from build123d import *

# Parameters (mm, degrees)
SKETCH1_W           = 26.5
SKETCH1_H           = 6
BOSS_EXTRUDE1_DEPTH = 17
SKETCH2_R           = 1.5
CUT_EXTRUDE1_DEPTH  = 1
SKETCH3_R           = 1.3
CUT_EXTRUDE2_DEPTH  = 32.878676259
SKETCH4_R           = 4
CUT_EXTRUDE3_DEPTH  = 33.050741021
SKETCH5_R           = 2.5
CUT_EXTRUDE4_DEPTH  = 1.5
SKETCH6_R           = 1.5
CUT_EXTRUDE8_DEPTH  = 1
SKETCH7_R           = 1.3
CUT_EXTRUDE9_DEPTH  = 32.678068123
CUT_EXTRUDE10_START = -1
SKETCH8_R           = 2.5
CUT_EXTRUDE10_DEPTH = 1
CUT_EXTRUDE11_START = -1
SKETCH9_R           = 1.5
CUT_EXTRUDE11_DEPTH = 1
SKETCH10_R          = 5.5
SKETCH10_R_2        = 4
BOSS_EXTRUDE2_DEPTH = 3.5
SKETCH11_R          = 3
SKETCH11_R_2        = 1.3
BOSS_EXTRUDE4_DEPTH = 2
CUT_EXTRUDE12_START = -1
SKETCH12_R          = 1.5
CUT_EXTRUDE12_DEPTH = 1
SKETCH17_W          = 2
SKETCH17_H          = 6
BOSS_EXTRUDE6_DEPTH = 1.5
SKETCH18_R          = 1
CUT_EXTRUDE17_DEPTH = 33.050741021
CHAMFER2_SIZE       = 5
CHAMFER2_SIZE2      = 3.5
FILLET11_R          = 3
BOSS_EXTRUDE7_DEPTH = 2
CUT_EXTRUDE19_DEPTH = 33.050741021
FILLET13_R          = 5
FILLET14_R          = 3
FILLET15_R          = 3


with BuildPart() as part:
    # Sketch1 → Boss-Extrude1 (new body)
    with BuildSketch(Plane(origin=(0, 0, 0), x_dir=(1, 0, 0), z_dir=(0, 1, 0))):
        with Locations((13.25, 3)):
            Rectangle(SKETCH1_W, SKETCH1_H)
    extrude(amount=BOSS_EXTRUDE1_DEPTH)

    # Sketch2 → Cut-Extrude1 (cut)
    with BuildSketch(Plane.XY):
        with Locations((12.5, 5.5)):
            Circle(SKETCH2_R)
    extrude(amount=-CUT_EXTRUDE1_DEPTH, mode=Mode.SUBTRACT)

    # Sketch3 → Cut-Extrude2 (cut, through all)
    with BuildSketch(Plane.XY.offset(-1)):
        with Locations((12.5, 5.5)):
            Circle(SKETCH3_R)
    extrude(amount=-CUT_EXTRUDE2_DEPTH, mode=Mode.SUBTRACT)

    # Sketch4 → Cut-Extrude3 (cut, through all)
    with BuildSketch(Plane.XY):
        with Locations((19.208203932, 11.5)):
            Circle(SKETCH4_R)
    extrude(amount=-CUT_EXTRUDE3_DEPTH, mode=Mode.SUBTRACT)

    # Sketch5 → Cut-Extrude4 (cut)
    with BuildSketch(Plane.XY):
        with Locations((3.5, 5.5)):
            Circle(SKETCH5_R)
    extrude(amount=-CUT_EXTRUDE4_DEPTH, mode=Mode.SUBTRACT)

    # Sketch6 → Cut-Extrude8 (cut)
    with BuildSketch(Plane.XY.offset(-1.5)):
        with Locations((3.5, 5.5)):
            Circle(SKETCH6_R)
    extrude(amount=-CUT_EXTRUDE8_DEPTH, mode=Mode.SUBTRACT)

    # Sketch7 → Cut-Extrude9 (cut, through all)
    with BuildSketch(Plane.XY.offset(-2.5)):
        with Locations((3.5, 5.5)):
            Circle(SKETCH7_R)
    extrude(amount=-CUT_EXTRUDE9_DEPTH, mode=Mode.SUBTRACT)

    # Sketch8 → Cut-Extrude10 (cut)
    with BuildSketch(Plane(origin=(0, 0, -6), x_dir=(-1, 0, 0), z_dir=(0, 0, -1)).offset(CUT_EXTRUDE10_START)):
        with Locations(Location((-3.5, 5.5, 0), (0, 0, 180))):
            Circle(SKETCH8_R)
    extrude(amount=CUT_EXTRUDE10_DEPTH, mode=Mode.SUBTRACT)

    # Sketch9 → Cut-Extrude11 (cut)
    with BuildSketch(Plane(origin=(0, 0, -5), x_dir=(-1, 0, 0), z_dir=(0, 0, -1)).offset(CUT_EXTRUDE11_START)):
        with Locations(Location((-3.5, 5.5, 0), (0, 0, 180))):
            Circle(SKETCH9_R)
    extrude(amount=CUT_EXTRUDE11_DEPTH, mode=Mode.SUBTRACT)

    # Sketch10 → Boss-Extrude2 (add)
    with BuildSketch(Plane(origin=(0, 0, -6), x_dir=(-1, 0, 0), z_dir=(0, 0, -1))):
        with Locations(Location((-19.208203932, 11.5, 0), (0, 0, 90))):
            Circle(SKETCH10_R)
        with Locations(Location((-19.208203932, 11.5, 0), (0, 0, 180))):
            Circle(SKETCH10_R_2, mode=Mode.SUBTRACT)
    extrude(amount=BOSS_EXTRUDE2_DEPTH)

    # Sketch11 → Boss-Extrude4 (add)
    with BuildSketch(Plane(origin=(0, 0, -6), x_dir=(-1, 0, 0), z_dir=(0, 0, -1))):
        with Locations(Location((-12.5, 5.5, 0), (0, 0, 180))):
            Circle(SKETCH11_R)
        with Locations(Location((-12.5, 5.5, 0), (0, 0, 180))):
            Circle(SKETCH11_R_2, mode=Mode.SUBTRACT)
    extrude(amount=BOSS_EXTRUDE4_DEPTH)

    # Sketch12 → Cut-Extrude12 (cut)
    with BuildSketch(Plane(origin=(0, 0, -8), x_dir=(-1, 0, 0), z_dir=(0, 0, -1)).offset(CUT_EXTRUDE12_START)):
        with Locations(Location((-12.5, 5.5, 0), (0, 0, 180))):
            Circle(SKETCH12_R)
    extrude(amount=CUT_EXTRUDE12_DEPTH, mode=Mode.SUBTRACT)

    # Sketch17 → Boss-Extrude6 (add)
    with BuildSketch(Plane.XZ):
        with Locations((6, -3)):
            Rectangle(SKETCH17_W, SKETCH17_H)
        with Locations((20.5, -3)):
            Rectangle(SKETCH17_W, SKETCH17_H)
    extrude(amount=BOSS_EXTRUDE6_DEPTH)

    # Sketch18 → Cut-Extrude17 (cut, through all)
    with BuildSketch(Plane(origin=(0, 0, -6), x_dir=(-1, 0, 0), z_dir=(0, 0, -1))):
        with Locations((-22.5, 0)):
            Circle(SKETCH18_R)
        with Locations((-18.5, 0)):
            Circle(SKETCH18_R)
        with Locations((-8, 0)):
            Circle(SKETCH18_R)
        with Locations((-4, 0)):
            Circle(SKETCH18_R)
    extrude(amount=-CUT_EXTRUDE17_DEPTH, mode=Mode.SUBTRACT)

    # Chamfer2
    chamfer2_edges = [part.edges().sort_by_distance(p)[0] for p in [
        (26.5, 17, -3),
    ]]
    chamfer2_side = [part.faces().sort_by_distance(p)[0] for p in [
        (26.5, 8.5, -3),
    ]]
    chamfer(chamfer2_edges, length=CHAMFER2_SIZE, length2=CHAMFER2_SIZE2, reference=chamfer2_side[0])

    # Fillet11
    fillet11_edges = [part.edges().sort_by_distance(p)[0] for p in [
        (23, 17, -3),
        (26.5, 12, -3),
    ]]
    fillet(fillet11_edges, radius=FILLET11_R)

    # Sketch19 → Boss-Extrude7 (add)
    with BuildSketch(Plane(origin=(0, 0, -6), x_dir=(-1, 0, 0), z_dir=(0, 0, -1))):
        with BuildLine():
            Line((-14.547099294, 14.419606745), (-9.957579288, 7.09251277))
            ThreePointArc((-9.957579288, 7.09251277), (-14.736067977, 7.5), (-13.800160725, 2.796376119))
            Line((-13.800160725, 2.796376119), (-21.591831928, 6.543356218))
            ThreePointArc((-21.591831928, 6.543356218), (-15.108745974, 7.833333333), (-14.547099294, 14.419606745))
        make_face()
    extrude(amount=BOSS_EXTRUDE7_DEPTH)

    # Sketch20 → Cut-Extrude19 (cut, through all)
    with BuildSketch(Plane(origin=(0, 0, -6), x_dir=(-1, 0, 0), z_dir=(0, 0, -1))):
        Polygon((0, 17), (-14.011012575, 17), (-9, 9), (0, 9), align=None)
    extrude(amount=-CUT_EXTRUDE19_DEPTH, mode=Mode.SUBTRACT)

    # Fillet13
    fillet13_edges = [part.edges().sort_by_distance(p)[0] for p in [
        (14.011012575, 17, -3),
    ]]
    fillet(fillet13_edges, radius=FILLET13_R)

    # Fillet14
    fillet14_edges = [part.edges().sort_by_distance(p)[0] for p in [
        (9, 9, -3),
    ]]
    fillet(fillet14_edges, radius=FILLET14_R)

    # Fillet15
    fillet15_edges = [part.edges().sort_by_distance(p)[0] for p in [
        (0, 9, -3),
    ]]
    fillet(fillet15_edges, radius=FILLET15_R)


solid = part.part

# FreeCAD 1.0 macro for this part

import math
import FreeCAD as App
import Part
import Sketcher
from FreeCAD import Vector
Q = App.Units.Quantity


def edges_at(feature, points):
    """Names of the edges that pass closest to the given points."""
    edges = feature.Shape.Edges
    near = lambda p: min(range(len(edges)), key=lambda i: edges[i].distToShape(Part.Vertex(*p))[0])
    return sorted({f"Edge{near(p) + 1}" for p in points})


def add_polygon(sketch, points):
    """Adds a closed chain of lines whose ends are joined by coincident constraints."""
    first, n = sketch.GeometryCount, len(points)
    for a, b in zip(points, points[1:] + points[:1]):
        sketch.addGeometry(Part.LineSegment(App.Vector(*a, 0), App.Vector(*b, 0)), False)
    for i in range(n):
        sketch.addConstraint(Sketcher.Constraint("Coincident", first + i, 2, first + (i + 1) % n, 1))

doc = App.newDocument("Part")
body = doc.addObject("PartDesign::Body", "Body")

sketch1 = body.newObject("Sketcher::SketchObject", "Sketch")
sketch1.AttachmentSupport = (doc.getObject("XZ_Plane"), [""])
sketch1.MapMode = "FlatFace"
add_polygon(sketch1, [(0, -6), (0, 0), (26, 0), (26, -6)])
sketch1.addConstraint([
    Sketcher.Constraint("Vertical", 0),
    Sketcher.Constraint("Horizontal", 1),
    Sketcher.Constraint("Vertical", 2),
    Sketcher.Constraint("Horizontal", 3),
    Sketcher.Constraint("Coincident", 0, 2, -1, 1),
    Sketcher.Constraint("DistanceY", 0, 1, 0, 2, Q("6 mm")),
    Sketcher.Constraint("DistanceX", 1, 1, 1, 2, Q("26.5 mm")),
])
pad1 = body.newObject("PartDesign::Pad", "Pad")
pad1.Profile = sketch1
pad1.Length = 17
pad1.Reversed = True

sketch2 = body.newObject("Sketcher::SketchObject", "Sketch001")
sketch2.AttachmentSupport = (doc.getObject("XY_Plane"), [""])
sketch2.MapMode = "FlatFace"
sketch2.addGeometry(Part.Circle(Vector(12.5, 5.5, 0), Vector(0, 0, 1), 1.5), False)
sketch2.addConstraint([
    Sketcher.Constraint("Diameter", 0, Q("3 mm")),
    Sketcher.Constraint("DistanceX", -1, 1, 0, 3, Q("12.5 mm")),
    Sketcher.Constraint("DistanceY", -1, 1, 0, 3, Q("5.5 mm")),
])
pocket1 = body.newObject("PartDesign::Pocket", "Pocket")
pocket1.Profile = sketch2
pocket1.Length = 1

sketch3 = body.newObject("Sketcher::SketchObject", "Sketch002")
sketch3.AttachmentSupport = (doc.getObject("XY_Plane"), [""])
sketch3.MapMode = "FlatFace"
sketch3.AttachmentOffset = App.Placement(Vector(0, 0, -1), App.Rotation())
sketch3.addGeometry(Part.Circle(Vector(12.5, 5.5, 0), Vector(0, 0, 1), 1.3), False)
sketch3.addConstraint([
    Sketcher.Constraint("Diameter", 0, Q("2.6 mm")),
    Sketcher.Constraint("DistanceX", -1, 1, 0, 3, Q("12.5 mm")),
    Sketcher.Constraint("DistanceY", -1, 1, 0, 3, Q("5.5 mm")),
])
pocket2 = body.newObject("PartDesign::Pocket", "Pocket001")
pocket2.Profile = sketch3
pocket2.Type = "ThroughAll"

sketch4 = body.newObject("Sketcher::SketchObject", "Sketch003")
sketch4.AttachmentSupport = (doc.getObject("XY_Plane"), [""])
sketch4.MapMode = "FlatFace"
sketch4.addGeometry(Part.Circle(Vector(19.2, 11.5, 0), Vector(0, 0, 1), 4), False)
sketch4.addConstraint([
    Sketcher.Constraint("Diameter", 0, Q("8 mm")),
    Sketcher.Constraint("DistanceY", -1, 1, 0, 3, Q("11.5 mm")),
    Sketcher.Constraint("DistanceX", -1, 1, 0, 3, Q("19.208204 mm")),
])
pocket3 = body.newObject("PartDesign::Pocket", "Pocket002")
pocket3.Profile = sketch4
pocket3.Type = "ThroughAll"

sketch5 = body.newObject("Sketcher::SketchObject", "Sketch004")
sketch5.AttachmentSupport = (doc.getObject("XY_Plane"), [""])
sketch5.MapMode = "FlatFace"
sketch5.addGeometry(Part.Circle(Vector(3.5, 5.5, 0), Vector(0, 0, 1), 2.5), False)
sketch5.addConstraint([
    Sketcher.Constraint("Diameter", 0, Q("5 mm")),
    Sketcher.Constraint("DistanceX", -1, 1, 0, 3, Q("3.5 mm")),
    Sketcher.Constraint("DistanceY", -1, 1, 0, 3, Q("5.5 mm")),
])
pocket4 = body.newObject("PartDesign::Pocket", "Pocket003")
pocket4.Profile = sketch5
pocket4.Length = 1.5

sketch6 = body.newObject("Sketcher::SketchObject", "Sketch005")
sketch6.AttachmentSupport = (doc.getObject("XY_Plane"), [""])
sketch6.MapMode = "FlatFace"
sketch6.AttachmentOffset = App.Placement(Vector(0, 0, -1.5), App.Rotation())
sketch6.addGeometry(Part.Circle(Vector(3.5, 5.5, 0), Vector(0, 0, 1), 1.5), False)
sketch6.addConstraint([
    Sketcher.Constraint("Diameter", 0, Q("3 mm")),
    Sketcher.Constraint("DistanceX", -1, 1, 0, 3, Q("3.5 mm")),
    Sketcher.Constraint("DistanceY", -1, 1, 0, 3, Q("5.5 mm")),
])
pocket5 = body.newObject("PartDesign::Pocket", "Pocket004")
pocket5.Profile = sketch6
pocket5.Length = 1

sketch7 = body.newObject("Sketcher::SketchObject", "Sketch006")
sketch7.AttachmentSupport = (doc.getObject("XY_Plane"), [""])
sketch7.MapMode = "FlatFace"
sketch7.AttachmentOffset = App.Placement(Vector(0, 0, -2.5), App.Rotation())
sketch7.addGeometry(Part.Circle(Vector(3.5, 5.5, 0), Vector(0, 0, 1), 1.3), False)
sketch7.addConstraint([
    Sketcher.Constraint("Diameter", 0, Q("2.6 mm")),
    Sketcher.Constraint("DistanceX", -1, 1, 0, 3, Q("3.5 mm")),
    Sketcher.Constraint("DistanceY", -1, 1, 0, 3, Q("5.5 mm")),
])
pocket6 = body.newObject("PartDesign::Pocket", "Pocket005")
pocket6.Profile = sketch7
pocket6.Type = "ThroughAll"

sketch8 = body.newObject("Sketcher::SketchObject", "Sketch007")
sketch8.AttachmentSupport = (doc.getObject("XY_Plane"), [""])
sketch8.MapMode = "FlatFace"
sketch8.AttachmentOffset = App.Placement(Vector(0, 0, -5), App.Rotation())
sketch8.addGeometry(Part.Circle(Vector(3.5, 5.5, 0), Vector(0, 0, 1), 2.5), False)
sketch8.addConstraint([
    Sketcher.Constraint("Diameter", 0, Q("5 mm")),
    Sketcher.Constraint("DistanceX", -1, 1, 0, 3, Q("3.5 mm")),
    Sketcher.Constraint("DistanceY", -1, 1, 0, 3, Q("5.5 mm")),
])
pocket7 = body.newObject("PartDesign::Pocket", "Pocket006")
pocket7.Profile = sketch8
pocket7.Length = 1

sketch9 = body.newObject("Sketcher::SketchObject", "Sketch008")
sketch9.AttachmentSupport = (doc.getObject("XY_Plane"), [""])
sketch9.MapMode = "FlatFace"
sketch9.AttachmentOffset = App.Placement(Vector(0, 0, -4), App.Rotation())
sketch9.addGeometry(Part.Circle(Vector(3.5, 5.5, 0), Vector(0, 0, 1), 1.5), False)
sketch9.addConstraint([
    Sketcher.Constraint("Diameter", 0, Q("3 mm")),
    Sketcher.Constraint("DistanceX", -1, 1, 0, 3, Q("3.5 mm")),
    Sketcher.Constraint("DistanceY", -1, 1, 0, 3, Q("5.5 mm")),
])
pocket8 = body.newObject("PartDesign::Pocket", "Pocket007")
pocket8.Profile = sketch9
pocket8.Length = 1

sketch10 = body.newObject("Sketcher::SketchObject", "Sketch009")
sketch10.AttachmentSupport = (doc.getObject("XY_Plane"), [""])
sketch10.MapMode = "FlatFace"
sketch10.AttachmentOffset = App.Placement(Vector(0, 0, -6), App.Rotation())
sketch10.addGeometry([
    Part.Circle(Vector(19.2, 11.5, 0), Vector(0, 0, 1), 5.5),
    Part.Circle(Vector(19.2, 11.5, 0), Vector(0, 0, 1), 4),
], False)
sketch10.addConstraint([
    Sketcher.Constraint("Coincident", 1, 3, 0, 3),
    Sketcher.Constraint("Diameter", 0, Q("11 mm")),
    Sketcher.Constraint("Diameter", 1, Q("8 mm")),
    Sketcher.Constraint("DistanceY", -1, 1, 0, 3, Q("11.5 mm")),
    Sketcher.Constraint("DistanceX", -1, 1, 0, 3, Q("19.208204 mm")),
])
pad2 = body.newObject("PartDesign::Pad", "Pad001")
pad2.Profile = sketch10
pad2.Length = 3.5
pad2.Reversed = True

sketch11 = body.newObject("Sketcher::SketchObject", "Sketch010")
sketch11.AttachmentSupport = (doc.getObject("XY_Plane"), [""])
sketch11.MapMode = "FlatFace"
sketch11.AttachmentOffset = App.Placement(Vector(0, 0, -6), App.Rotation())
sketch11.addGeometry([
    Part.Circle(Vector(12.5, 5.5, 0), Vector(0, 0, 1), 3),
    Part.Circle(Vector(12.5, 5.5, 0), Vector(0, 0, 1), 1.3),
], False)
sketch11.addConstraint([
    Sketcher.Constraint("Coincident", 1, 3, 0, 3),
    Sketcher.Constraint("Diameter", 0, Q("6 mm")),
    Sketcher.Constraint("Diameter", 1, Q("2.6 mm")),
    Sketcher.Constraint("DistanceX", -1, 1, 0, 3, Q("12.5 mm")),
    Sketcher.Constraint("DistanceY", -1, 1, 0, 3, Q("5.5 mm")),
])
pad3 = body.newObject("PartDesign::Pad", "Pad002")
pad3.Profile = sketch11
pad3.Length = 2
pad3.Reversed = True

sketch12 = body.newObject("Sketcher::SketchObject", "Sketch011")
sketch12.AttachmentSupport = (doc.getObject("XY_Plane"), [""])
sketch12.MapMode = "FlatFace"
sketch12.AttachmentOffset = App.Placement(Vector(0, 0, -7), App.Rotation())
sketch12.addGeometry(Part.Circle(Vector(12.5, 5.5, 0), Vector(0, 0, 1), 1.5), False)
sketch12.addConstraint([
    Sketcher.Constraint("Diameter", 0, Q("3 mm")),
    Sketcher.Constraint("DistanceX", -1, 1, 0, 3, Q("12.5 mm")),
    Sketcher.Constraint("DistanceY", -1, 1, 0, 3, Q("5.5 mm")),
])
pocket9 = body.newObject("PartDesign::Pocket", "Pocket008")
pocket9.Profile = sketch12
pocket9.Length = 1

sketch13 = body.newObject("Sketcher::SketchObject", "Sketch012")
sketch13.AttachmentSupport = (doc.getObject("XZ_Plane"), [""])
sketch13.MapMode = "FlatFace"
add_polygon(sketch13, [(5, 0), (5, -6), (7, -6), (7, 0)])
add_polygon(sketch13, [(19.5, 0), (19.5, -6), (21.5, -6), (21.5, 0)])
sketch13.addConstraint([
    Sketcher.Constraint("Vertical", 0),
    Sketcher.Constraint("Horizontal", 1),
    Sketcher.Constraint("Vertical", 2),
    Sketcher.Constraint("Horizontal", 3),
    Sketcher.Constraint("Vertical", 4),
    Sketcher.Constraint("Horizontal", 5),
    Sketcher.Constraint("Vertical", 6),
    Sketcher.Constraint("Horizontal", 7),
    Sketcher.Constraint("PointOnObject", 2, 2, -1),
    Sketcher.Constraint("PointOnObject", 6, 2, -1),
    Sketcher.Constraint("Horizontal", 1, 2, 4, 2),
    Sketcher.Constraint("Equal", 3, 5),
    Sketcher.Constraint("DistanceX", 1, 1, 1, 2, Q("2 mm")),
    Sketcher.Constraint("DistanceY", 0, 2, 0, 1, Q("6 mm")),
    Sketcher.Constraint("DistanceX", -1, 1, 0, 2, Q("5 mm")),
    Sketcher.Constraint("DistanceX", -1, 1, 4, 2, Q("19.5 mm")),
])
pad4 = body.newObject("PartDesign::Pad", "Pad003")
pad4.Profile = sketch13
pad4.Length = 1.5

sketch14 = body.newObject("Sketcher::SketchObject", "Sketch013")
sketch14.AttachmentSupport = (doc.getObject("XY_Plane"), [""])
sketch14.MapMode = "FlatFace"
sketch14.AttachmentOffset = App.Placement(Vector(0, 0, -6), App.Rotation())
sketch14.addGeometry([
    Part.Circle(Vector(22.5, 0, 0), Vector(0, 0, 1), 1),
    Part.Circle(Vector(18.5, 0, 0), Vector(0, 0, 1), 1),
    Part.Circle(Vector(8, 0, 0), Vector(0, 0, 1), 1),
    Part.Circle(Vector(4, 0, 0), Vector(0, 0, 1), 1),
], False)
sketch14.addConstraint([
    Sketcher.Constraint("Equal", 0, 1),
    Sketcher.Constraint("Equal", 1, 2),
    Sketcher.Constraint("Equal", 2, 3),
    Sketcher.Constraint("PointOnObject", 0, 3, -1),
    Sketcher.Constraint("PointOnObject", 1, 3, -1),
    Sketcher.Constraint("PointOnObject", 2, 3, -1),
    Sketcher.Constraint("PointOnObject", 3, 3, -1),
    Sketcher.Constraint("Diameter", 0, Q("2 mm")),
    Sketcher.Constraint("DistanceX", -1, 1, 2, 3, Q("8 mm")),
    Sketcher.Constraint("DistanceX", -1, 1, 3, 3, Q("4 mm")),
    Sketcher.Constraint("DistanceX", 1, 3, 0, 3, Q("4 mm")),
    Sketcher.Constraint("DistanceX", -1, 1, 0, 3, Q("22.5 mm")),
])
pocket10 = body.newObject("PartDesign::Pocket", "Pocket009")
pocket10.Profile = sketch14
pocket10.Type = "ThroughAll"
pocket10.Reversed = True
doc.recompute()

chamfer = body.newObject("PartDesign::Chamfer", "Chamfer")
chamfer.Base = (pocket10, edges_at(pocket10, [(26.5, 17, -3)]))
chamfer.ChamferType = "Two distances"
chamfer.Size = 5
chamfer.Size2 = 3.5
doc.recompute()

fillet = body.newObject("PartDesign::Fillet", "Fillet")
fillet.Base = (chamfer, edges_at(chamfer, [(23, 17, -3), (26.5, 12, -3)]))
fillet.Radius = 3

sketch15 = body.newObject("Sketcher::SketchObject", "Sketch014")
sketch15.AttachmentSupport = (doc.getObject("XY_Plane"), [""])
sketch15.MapMode = "FlatFace"
sketch15.AttachmentOffset = App.Placement(Vector(0, 0, -6), App.Rotation())
sketch15.addGeometry([
    Part.LineSegment(Vector(10, 7.1, 0), Vector(14.5, 14.4, 0)),
    Part.ArcOfCircle(Part.Circle(Vector(19.2, 11.5, 0), Vector(0, 0, 1), 5.5), math.radians(148), math.radians(296)),
    Part.LineSegment(Vector(21.6, 6.5, 0), Vector(13.8, 2.8, 0)),
    Part.ArcOfCircle(Part.Circle(Vector(12.5, 5.5, 0), Vector(0, 0, 1), 3), math.radians(-64), math.radians(148)),
], False)
sketch15.addConstraint([
    Sketcher.Constraint("Tangent", 0, 2, 1, 1),
    Sketcher.Constraint("Tangent", 1, 2, 2, 1),
    Sketcher.Constraint("Tangent", 2, 2, 3, 1),
    Sketcher.Constraint("Tangent", 3, 2, 0, 1),
    Sketcher.Constraint("Radius", 3, Q("3 mm")),
    Sketcher.Constraint("Radius", 1, Q("5.5 mm")),
    Sketcher.Constraint("DistanceY", 3, 3, 1, 3, Q("6 mm")),
    Sketcher.Constraint("DistanceY", -1, 1, 1, 3, Q("11.5 mm")),
    Sketcher.Constraint("DistanceX", -1, 1, 3, 3, Q("12.5 mm")),
    Sketcher.Constraint("DistanceX", -1, 1, 0, 2, Q("14.547099 mm")),
])
pad5 = body.newObject("PartDesign::Pad", "Pad004")
pad5.Profile = sketch15
pad5.Length = 2
pad5.Reversed = True

sketch16 = body.newObject("Sketcher::SketchObject", "Sketch015")
sketch16.AttachmentSupport = (doc.getObject("XY_Plane"), [""])
sketch16.MapMode = "FlatFace"
sketch16.AttachmentOffset = App.Placement(Vector(0, 0, -6), App.Rotation())
add_polygon(sketch16, [(0, 17), (14, 17), (9, 9), (0, 9)])
sketch16.addConstraint([
    Sketcher.Constraint("Horizontal", 0),
    Sketcher.Constraint("Horizontal", 2),
    Sketcher.Constraint("Vertical", 3),
    Sketcher.Constraint("PointOnObject", 2, 2, -2),
    Sketcher.Constraint("DistanceX", 2, 2, 2, 1, Q("9 mm")),
    Sketcher.Constraint("DistanceY", 3, 1, 3, 2, Q("8 mm")),
    Sketcher.Constraint("DistanceY", -1, 1, 0, 2, Q("17 mm")),
    Sketcher.Constraint("DistanceX", 0, 1, 0, 2, Q("14.011013 mm")),
])
pocket11 = body.newObject("PartDesign::Pocket", "Pocket010")
pocket11.Profile = sketch16
pocket11.Type = "ThroughAll"
pocket11.Reversed = True
doc.recompute()

fillet2 = body.newObject("PartDesign::Fillet", "Fillet001")
fillet2.Base = (pocket11, edges_at(pocket11, [(14.011, 17, -3)]))
fillet2.Radius = 5
doc.recompute()

fillet3 = body.newObject("PartDesign::Fillet", "Fillet002")
fillet3.Base = (fillet2, edges_at(fillet2, [(9, 9, -3)]))
fillet3.Radius = 3
doc.recompute()

fillet4 = body.newObject("PartDesign::Fillet", "Fillet003")
fillet4.Base = (fillet3, edges_at(fillet3, [(0, 9, -3)]))
fillet4.Radius = 3

doc.recompute()
